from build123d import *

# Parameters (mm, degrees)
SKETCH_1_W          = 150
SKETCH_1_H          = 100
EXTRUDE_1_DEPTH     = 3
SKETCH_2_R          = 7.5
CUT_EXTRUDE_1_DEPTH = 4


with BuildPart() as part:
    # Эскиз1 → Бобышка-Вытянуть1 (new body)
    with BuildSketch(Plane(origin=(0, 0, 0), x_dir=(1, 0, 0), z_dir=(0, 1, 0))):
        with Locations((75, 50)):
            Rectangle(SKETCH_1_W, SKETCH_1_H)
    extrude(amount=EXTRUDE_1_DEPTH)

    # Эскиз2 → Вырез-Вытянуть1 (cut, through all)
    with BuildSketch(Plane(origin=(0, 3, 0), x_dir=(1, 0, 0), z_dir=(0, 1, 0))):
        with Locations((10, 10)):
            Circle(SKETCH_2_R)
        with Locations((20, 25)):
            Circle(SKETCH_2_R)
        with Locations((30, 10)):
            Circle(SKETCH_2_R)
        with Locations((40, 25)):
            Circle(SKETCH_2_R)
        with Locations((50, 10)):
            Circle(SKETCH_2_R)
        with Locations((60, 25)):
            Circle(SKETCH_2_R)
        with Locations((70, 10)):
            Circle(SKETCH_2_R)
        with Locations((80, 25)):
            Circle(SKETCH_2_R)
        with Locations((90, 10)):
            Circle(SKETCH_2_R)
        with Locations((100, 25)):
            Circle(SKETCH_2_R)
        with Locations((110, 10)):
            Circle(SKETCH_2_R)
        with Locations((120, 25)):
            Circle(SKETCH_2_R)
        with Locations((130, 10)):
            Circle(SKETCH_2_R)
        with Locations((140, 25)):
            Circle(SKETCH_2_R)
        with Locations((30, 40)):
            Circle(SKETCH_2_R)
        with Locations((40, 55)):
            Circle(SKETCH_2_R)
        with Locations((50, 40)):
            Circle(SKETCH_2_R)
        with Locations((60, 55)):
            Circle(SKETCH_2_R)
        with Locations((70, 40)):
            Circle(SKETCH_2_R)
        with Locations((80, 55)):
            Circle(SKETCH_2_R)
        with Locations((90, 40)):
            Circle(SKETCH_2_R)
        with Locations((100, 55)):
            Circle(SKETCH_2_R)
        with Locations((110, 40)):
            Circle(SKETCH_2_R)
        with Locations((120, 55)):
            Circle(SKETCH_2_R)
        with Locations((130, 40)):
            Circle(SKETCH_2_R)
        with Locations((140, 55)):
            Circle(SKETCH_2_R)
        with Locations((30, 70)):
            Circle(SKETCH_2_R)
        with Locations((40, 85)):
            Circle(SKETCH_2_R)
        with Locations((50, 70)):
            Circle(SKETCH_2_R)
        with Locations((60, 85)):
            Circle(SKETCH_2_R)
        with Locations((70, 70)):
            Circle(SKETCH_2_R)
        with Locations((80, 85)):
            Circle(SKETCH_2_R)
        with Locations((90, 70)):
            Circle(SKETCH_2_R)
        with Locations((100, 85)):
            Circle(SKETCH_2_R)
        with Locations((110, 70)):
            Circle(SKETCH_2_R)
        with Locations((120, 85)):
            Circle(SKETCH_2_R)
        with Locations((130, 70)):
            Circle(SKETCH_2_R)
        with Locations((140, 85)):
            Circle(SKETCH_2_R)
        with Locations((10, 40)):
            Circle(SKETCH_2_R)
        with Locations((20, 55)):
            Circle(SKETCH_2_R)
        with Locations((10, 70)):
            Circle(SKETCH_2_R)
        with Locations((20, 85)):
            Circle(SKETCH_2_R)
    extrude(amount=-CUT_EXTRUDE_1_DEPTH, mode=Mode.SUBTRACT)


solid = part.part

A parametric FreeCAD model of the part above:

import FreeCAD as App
import Part
import Sketcher
from FreeCAD import Vector


def add_polygon(sketch, points):
    """Adds a closed chain of lines whose ends are joined by coincident constraints."""
    first, n = sketch.GeometryCount, len(points)
    for a, b in zip(points, points[1:] + points[:1]):
        sketch.addGeometry(Part.LineSegment(App.Vector(*a, 0), App.Vector(*b, 0)), False)
    for i in range(n):
        sketch.addConstraint(Sketcher.Constraint("Coincident", first + i, 2, first + (i + 1) % n, 1))

doc = App.newDocument("Part")
body = doc.addObject("PartDesign::Body", "Body")

# Sketch on XZ plane
sketch1 = body.newObject("Sketcher::SketchObject", "Sketch")
sketch1.AttachmentSupport = (doc.getObject("XZ_Plane"), [""])
sketch1.MapMode = "FlatFace"
add_polygon(sketch1, [(0, -100), (0, 0), (150, 0), (150, -100)])  # lines 0-3
sketch1.addConstraint([
    Sketcher.Constraint("Vertical", 0),
    Sketcher.Constraint("Horizontal", 1),
    Sketcher.Constraint("Vertical", 2),
    Sketcher.Constraint("Horizontal", 3),
    Sketcher.Constraint("Coincident", 0, 2, -1, 1),
    Sketcher.Constraint("DistanceX", 1, 1, 1, 2, 150.0),
    Sketcher.Constraint("DistanceY", 0, 1, 0, 2, 100.0),
])
pad1 = body.newObject("PartDesign::Pad", "Pad")
pad1.Profile = sketch1
pad1.Length = 3
pad1.Reversed = True

# Sketch on XZ plane
sketch2 = body.newObject("Sketcher::SketchObject", "Sketch001")
sketch2.AttachmentSupport = (doc.getObject("XZ_Plane"), [""])
sketch2.MapMode = "FlatFace"
sketch2.AttachmentOffset = App.Placement(Vector(0, 0, -3), App.Rotation())
sketch2.addGeometry([
    Part.Circle(Vector(10, -10, 0), Vector(0, 0, 1), 8),  # 0
    Part.Circle(Vector(20, -25, 0), Vector(0, 0, 1), 8),  # 1
    Part.Circle(Vector(30, -10, 0), Vector(0, 0, 1), 8),  # 2
    Part.Circle(Vector(40, -25, 0), Vector(0, 0, 1), 8),  # 3
    Part.Circle(Vector(50, -10, 0), Vector(0, 0, 1), 8),  # 4
    Part.Circle(Vector(60, -25, 0), Vector(0, 0, 1), 8),  # 5
    Part.Circle(Vector(70, -10, 0), Vector(0, 0, 1), 8),  # 6
    Part.Circle(Vector(80, -25, 0), Vector(0, 0, 1), 8),  # 7
    Part.Circle(Vector(90, -10, 0), Vector(0, 0, 1), 8),  # 8
    Part.Circle(Vector(100, -25, 0), Vector(0, 0, 1), 8),  # 9
    Part.Circle(Vector(110, -10, 0), Vector(0, 0, 1), 8),  # 10
    Part.Circle(Vector(120, -25, 0), Vector(0, 0, 1), 8),  # 11
    Part.Circle(Vector(130, -10, 0), Vector(0, 0, 1), 8),  # 12
    Part.Circle(Vector(140, -25, 0), Vector(0, 0, 1), 8),  # 13
    Part.Circle(Vector(30, -40, 0), Vector(0, 0, 1), 8),  # 14
    Part.Circle(Vector(40, -55, 0), Vector(0, 0, 1), 8),  # 15
    Part.Circle(Vector(50, -40, 0), Vector(0, 0, 1), 8),  # 16
    Part.Circle(Vector(60, -55, 0), Vector(0, 0, 1), 8),  # 17
    Part.Circle(Vector(70, -40, 0), Vector(0, 0, 1), 8),  # 18
    Part.Circle(Vector(80, -55, 0), Vector(0, 0, 1), 8),  # 19
    Part.Circle(Vector(90, -40, 0), Vector(0, 0, 1), 8),  # 20
    Part.Circle(Vector(100, -55, 0), Vector(0, 0, 1), 8),  # 21
    Part.Circle(Vector(110, -40, 0), Vector(0, 0, 1), 8),  # 22
    Part.Circle(Vector(120, -55, 0), Vector(0, 0, 1), 8),  # 23
    Part.Circle(Vector(130, -40, 0), Vector(0, 0, 1), 8),  # 24
    Part.Circle(Vector(140, -55, 0), Vector(0, 0, 1), 8),  # 25
    Part.Circle(Vector(30, -70, 0), Vector(0, 0, 1), 8),  # 26
    Part.Circle(Vector(40, -85, 0), Vector(0, 0, 1), 8),  # 27
    Part.Circle(Vector(50, -70, 0), Vector(0, 0, 1), 8),  # 28
    Part.Circle(Vector(60, -85, 0), Vector(0, 0, 1), 8),  # 29
    Part.Circle(Vector(70, -70, 0), Vector(0, 0, 1), 8),  # 30
    Part.Circle(Vector(80, -85, 0), Vector(0, 0, 1), 8),  # 31
    Part.Circle(Vector(90, -70, 0), Vector(0, 0, 1), 8),  # 32
    Part.Circle(Vector(100, -85, 0), Vector(0, 0, 1), 8),  # 33
    Part.Circle(Vector(110, -70, 0), Vector(0, 0, 1), 8),  # 34
    Part.Circle(Vector(120, -85, 0), Vector(0, 0, 1), 8),  # 35
    Part.Circle(Vector(130, -70, 0), Vector(0, 0, 1), 8),  # 36
    Part.Circle(Vector(140, -85, 0), Vector(0, 0, 1), 8),  # 37
    Part.Circle(Vector(10, -40, 0), Vector(0, 0, 1), 8),  # 38
    Part.Circle(Vector(20, -55, 0), Vector(0, 0, 1), 8),  # 39
    Part.Circle(Vector(10, -70, 0), Vector(0, 0, 1), 8),  # 40
    Part.Circle(Vector(20, -85, 0), Vector(0, 0, 1), 8),  # 41
], False)
sketch2.addConstraint([
    Sketcher.Constraint("Equal", 0, 1),
    Sketcher.Constraint("Equal", 1, 2),
    Sketcher.Constraint("Equal", 2, 3),
    Sketcher.Constraint("Equal", 3, 4),
    Sketcher.Constraint("Equal", 4, 5),
    Sketcher.Constraint("Equal", 5, 6),
    Sketcher.Constraint("Equal", 6, 7),
    Sketcher.Constraint("Equal", 7, 8),
    Sketcher.Constraint("Equal", 8, 9),
    Sketcher.Constraint("Equal", 9, 10),
    Sketcher.Constraint("Equal", 10, 11),
    Sketcher.Constraint("Equal", 11, 12),
    Sketcher.Constraint("Equal", 12, 13),
    Sketcher.Constraint("Equal", 13, 14),
    Sketcher.Constraint("Equal", 14, 15),
    Sketcher.Constraint("Equal", 15, 16),
    Sketcher.Constraint("Equal", 16, 17),
    Sketcher.Constraint("Equal", 17, 18),
    Sketcher.Constraint("Equal", 18, 19),
    Sketcher.Constraint("Equal", 19, 20),
    Sketcher.Constraint("Equal", 20, 21),
    Sketcher.Constraint("Equal", 21, 22),
    Sketcher.Constraint("Equal", 22, 23),
    Sketcher.Constraint("Equal", 23, 24),
    Sketcher.Constraint("Equal", 24, 25),
    Sketcher.Constraint("Equal", 25, 26),
    Sketcher.Constraint("Equal", 26, 27),
    Sketcher.Constraint("Equal", 27, 28),
    Sketcher.Constraint("Equal", 28, 29),
    Sketcher.Constraint("Equal", 29, 30),
    Sketcher.Constraint("Equal", 30, 31),
    Sketcher.Constraint("Equal", 31, 32),
    Sketcher.Constraint("Equal", 32, 33),
    Sketcher.Constraint("Equal", 33, 34),
    Sketcher.Constraint("Equal", 34, 35),
    Sketcher.Constraint("Equal", 35, 36),
    Sketcher.Constraint("Equal", 36, 37),
    Sketcher.Constraint("Equal", 37, 38),
    Sketcher.Constraint("Equal", 38, 39),
    Sketcher.Constraint("Equal", 39, 40),
    Sketcher.Constraint("Equal", 40, 41),
    Sketcher.Constraint("Horizontal", 0, 3, 2, 3),
    Sketcher.Constraint("Horizontal", 1, 3, 3, 3),
    Sketcher.Constraint("Horizontal", 2, 3, 4, 3),
    Sketcher.Constraint("Horizontal", 3, 3, 5, 3),
    Sketcher.Constraint("Horizontal", 4, 3, 6, 3),
    Sketcher.Constraint("Horizontal", 5, 3, 7, 3),
    Sketcher.Constraint("Horizontal", 6, 3, 8, 3),
    Sketcher.Constraint("Horizontal", 7, 3, 9, 3),
    Sketcher.Constraint("Horizontal", 8, 3, 10, 3),
    Sketcher.Constraint("Horizontal", 9, 3, 11, 3),
    Sketcher.Constraint("Horizontal", 10, 3, 12, 3),
    Sketcher.Constraint("Horizontal", 11, 3, 13, 3),
    Sketcher.Constraint("Horizontal", 14, 3, 16, 3),
    Sketcher.Constraint("Horizontal", 15, 3, 17, 3),
    Sketcher.Constraint("Horizontal", 16, 3, 18, 3),
    Sketcher.Constraint("Horizontal", 17, 3, 19, 3),
    Sketcher.Constraint("Horizontal", 18, 3, 20, 3),
    Sketcher.Constraint("Horizontal", 19, 3, 21, 3),
    Sketcher.Constraint("Horizontal", 20, 3, 22, 3),
    Sketcher.Constraint("Horizontal", 21, 3, 23, 3),
    Sketcher.Constraint("Horizontal", 22, 3, 24, 3),
    Sketcher.Constraint("Horizontal", 23, 3, 25, 3),
    Sketcher.Constraint("Horizontal", 26, 3, 28, 3),
    Sketcher.Constraint("Horizontal", 27, 3, 29, 3),
    Sketcher.Constraint("Horizontal", 28, 3, 30, 3),
    Sketcher.Constraint("Horizontal", 29, 3, 31, 3),
    Sketcher.Constraint("Horizontal", 30, 3, 32, 3),
    Sketcher.Constraint("Horizontal", 31, 3, 33, 3),
    Sketcher.Constraint("Horizontal", 32, 3, 34, 3),
    Sketcher.Constraint("Horizontal", 33, 3, 35, 3),
    Sketcher.Constraint("Horizontal", 34, 3, 36, 3),
    Sketcher.Constraint("Horizontal", 35, 3, 37, 3),
    Sketcher.Constraint("Horizontal", 24, 3, 38, 3),
    Sketcher.Constraint("Horizontal", 25, 3, 39, 3),
    Sketcher.Constraint("Horizontal", 36, 3, 40, 3),
    Sketcher.Constraint("Horizontal", 37, 3, 41, 3),
    Sketcher.Constraint("Vertical", 2, 3, 14, 3),
    Sketcher.Constraint("Vertical", 3, 3, 15, 3),
    Sketcher.Constraint("Vertical", 4, 3, 16, 3),
    Sketcher.Constraint("Vertical", 5, 3, 17, 3),
    Sketcher.Constraint("Vertical", 6, 3, 18, 3),
    Sketcher.Constraint("Vertical", 7, 3, 19, 3),
    Sketcher.Constraint("Vertical", 8, 3, 20, 3),
    Sketcher.Constraint("Vertical", 9, 3, 21, 3),
    Sketcher.Constraint("Vertical", 10, 3, 22, 3),
    Sketcher.Constraint("Vertical", 11, 3, 23, 3),
    Sketcher.Constraint("Vertical", 12, 3, 24, 3),
    Sketcher.Constraint("Vertical", 13, 3, 25, 3),
    Sketcher.Constraint("Vertical", 14, 3, 26, 3),
    Sketcher.Constraint("Vertical", 15, 3, 27, 3),
    Sketcher.Constraint("Vertical", 16, 3, 28, 3),
    Sketcher.Constraint("Vertical", 17, 3, 29, 3),
    Sketcher.Constraint("Vertical", 18, 3, 30, 3),
    Sketcher.Constraint("Vertical", 19, 3, 31, 3),
    Sketcher.Constraint("Vertical", 20, 3, 32, 3),
    Sketcher.Constraint("Vertical", 21, 3, 33, 3),
    Sketcher.Constraint("Vertical", 22, 3, 34, 3),
    Sketcher.Constraint("Vertical", 23, 3, 35, 3),
    Sketcher.Constraint("Vertical", 24, 3, 36, 3),
    Sketcher.Constraint("Vertical", 25, 3, 37, 3),
    Sketcher.Constraint("Vertical", 0, 3, 38, 3),
    Sketcher.Constraint("Vertical", 1, 3, 39, 3),
    Sketcher.Constraint("Vertical", 38, 3, 40, 3),
    Sketcher.Constraint("Vertical", 39, 3, 41, 3),
    Sketcher.Constraint("Diameter", 0, 15.0),
    Sketcher.Constraint("DistanceX", -1, 1, 0, 3, 10.0),
    Sketcher.Constraint("DistanceY", 0, 3, -1, 1, 10.0),
    Sketcher.Constraint("DistanceX", -1, 1, 1, 3, 20.0),
    Sketcher.Constraint("DistanceY", 1, 3, -1, 1, 25.0),
    Sketcher.Constraint("DistanceX", -1, 1, 2, 3, 30.0),
    Sketcher.Constraint("DistanceX", -1, 1, 3, 3, 40.0),
    Sketcher.Constraint("DistanceX", -1, 1, 4, 3, 50.0),
    Sketcher.Constraint("DistanceX", -1, 1, 5, 3, 60.0),
    Sketcher.Constraint("DistanceX", -1, 1, 6, 3, 70.0),
    Sketcher.Constraint("DistanceX", -1, 1, 7, 3, 80.0),
    Sketcher.Constraint("DistanceX", -1, 1, 8, 3, 90.0),
    Sketcher.Constraint("DistanceX", -1, 1, 9, 3, 100.0),
    Sketcher.Constraint("DistanceX", -1, 1, 10, 3, 110.0),
    Sketcher.Constraint("DistanceX", -1, 1, 11, 3, 120.0),
    Sketcher.Constraint("DistanceX", -1, 1, 12, 3, 130.0),
    Sketcher.Constraint("DistanceX", -1, 1, 13, 3, 140.0),
    Sketcher.Constraint("DistanceY", 14, 3, -1, 1, 40.0),
    Sketcher.Constraint("DistanceY", 15, 3, -1, 1, 55.0),
    Sketcher.Constraint("DistanceY", 26, 3, -1, 1, 70.0),
    Sketcher.Constraint("DistanceY", 27, 3, -1, 1, 85.0),
])
pocket1 = body.newObject("PartDesign::Pocket", "Pocket")
pocket1.Profile = sketch2
pocket1.Type = "ThroughAll"
pocket1.Reversed = True

doc.recompute()
